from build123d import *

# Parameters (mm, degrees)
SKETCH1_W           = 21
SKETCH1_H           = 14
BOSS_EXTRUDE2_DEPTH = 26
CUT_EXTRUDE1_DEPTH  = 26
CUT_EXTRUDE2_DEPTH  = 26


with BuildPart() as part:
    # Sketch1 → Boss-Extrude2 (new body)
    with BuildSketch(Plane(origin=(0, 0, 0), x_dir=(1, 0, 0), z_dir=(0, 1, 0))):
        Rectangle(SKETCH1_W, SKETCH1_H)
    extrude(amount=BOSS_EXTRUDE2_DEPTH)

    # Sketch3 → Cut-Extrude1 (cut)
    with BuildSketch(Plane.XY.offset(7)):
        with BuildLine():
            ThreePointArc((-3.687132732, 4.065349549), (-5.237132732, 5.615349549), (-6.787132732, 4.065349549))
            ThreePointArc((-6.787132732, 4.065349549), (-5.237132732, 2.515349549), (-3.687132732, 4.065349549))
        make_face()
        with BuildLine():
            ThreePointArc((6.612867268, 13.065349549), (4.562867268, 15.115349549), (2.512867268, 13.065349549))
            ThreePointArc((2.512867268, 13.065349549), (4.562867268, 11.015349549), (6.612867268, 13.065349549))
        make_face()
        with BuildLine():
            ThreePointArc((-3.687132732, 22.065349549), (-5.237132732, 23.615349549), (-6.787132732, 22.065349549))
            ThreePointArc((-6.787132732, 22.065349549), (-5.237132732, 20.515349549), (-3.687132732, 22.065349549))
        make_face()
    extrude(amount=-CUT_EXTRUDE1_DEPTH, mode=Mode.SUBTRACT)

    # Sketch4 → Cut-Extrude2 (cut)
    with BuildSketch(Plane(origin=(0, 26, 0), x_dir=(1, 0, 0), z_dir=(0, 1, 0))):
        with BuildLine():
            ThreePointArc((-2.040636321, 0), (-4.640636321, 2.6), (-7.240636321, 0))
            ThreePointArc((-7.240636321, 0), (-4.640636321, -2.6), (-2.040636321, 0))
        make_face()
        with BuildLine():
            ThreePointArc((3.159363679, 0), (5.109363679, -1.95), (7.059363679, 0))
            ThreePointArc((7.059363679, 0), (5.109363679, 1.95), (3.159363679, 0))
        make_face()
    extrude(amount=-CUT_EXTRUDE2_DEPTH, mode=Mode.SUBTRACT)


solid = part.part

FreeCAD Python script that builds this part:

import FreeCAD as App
import Part
import Sketcher
from FreeCAD import Vector

doc = App.newDocument("Part")
body = doc.addObject("PartDesign::Body", "Body")

sketch1 = doc.addObject("Sketcher::SketchObject", "Sketch")
body.addObject(sketch1)
sketch1.AttachmentSupport = (doc.XZ_Plane, [""])
sketch1.MapMode = "FlatFace"
sketch1.addGeometry([
    Part.LineSegment(Vector(-10, -7, 0), Vector(-10, 7, 0)),
    Part.LineSegment(Vector(-10, 7, 0), Vector(10, 7, 0)),
    Part.LineSegment(Vector(10, 7, 0), Vector(10, -7, 0)),
    Part.LineSegment(Vector(10, -7, 0), Vector(-10, -7, 0)),
], False)
sketch1.addConstraint([
    Sketcher.Constraint("Coincident", 0, 2, 1, 1),
    Sketcher.Constraint("Coincident", 1, 2, 2, 1),
    Sketcher.Constraint("Coincident", 2, 2, 3, 1),
    Sketcher.Constraint("Coincident", 3, 2, 0, 1),
    Sketcher.Constraint("Vertical", 0),
    Sketcher.Constraint("Horizontal", 1),
    Sketcher.Constraint("Vertical", 2),
    Sketcher.Constraint("Horizontal", 3),
    Sketcher.Constraint("Symmetric", 0, 2, 2, 2, -1, 1),
    Sketcher.Constraint("DistanceX", 1, 1, 1, 2, 21.0),
    Sketcher.Constraint("DistanceY", 0, 1, 0, 2, 14.0),
])
pad1 = doc.addObject("PartDesign::Pad", "Pad")
body.addObject(pad1)
pad1.Profile = sketch1
pad1.Length = 26
pad1.Reversed = True

sketch2 = doc.addObject("Sketcher::SketchObject", "Sketch001")
body.addObject(sketch2)
sketch2.AttachmentSupport = (doc.XY_Plane, [""])
sketch2.MapMode = "FlatFace"
sketch2.AttachmentOffset = App.Placement(Vector(0, 0, 7), App.Rotation())
sketch2.addGeometry([
    Part.Circle(Vector(-5.2, 4.1, 0), Vector(0, 0, 1), 1.6),
    Part.Circle(Vector(4.6, 13.1, 0), Vector(0, 0, 1), 2),
    Part.Circle(Vector(-5.2, 22.1, 0), Vector(0, 0, 1), 1.6),
], False)
sketch2.addConstraint([
    Sketcher.Constraint("Equal", 0, 2),
    Sketcher.Constraint("Vertical", 0, 3, 2, 3),
    Sketcher.Constraint("Diameter", 0, 3.1),
    Sketcher.Constraint("Diameter", 1, 4.1),
    Sketcher.Constraint("DistanceY", 0, 3, 1, 3, 9.0),
    Sketcher.Constraint("DistanceY", 1, 3, 2, 3, 9.0),
    Sketcher.Constraint("DistanceX", 0, 3, 1, 3, 9.8),
    Sketcher.Constraint("DistanceY", -1, 1, 0, 3, 4.06535),
    Sketcher.Constraint("DistanceX", 0, 3, -1, 1, 5.237133),
])
pocket1 = doc.addObject("PartDesign::Pocket", "Pocket")
body.addObject(pocket1)
pocket1.Profile = sketch2
pocket1.Length = 26

sketch3 = doc.addObject("Sketcher::SketchObject", "Sketch002")
body.addObject(sketch3)
sketch3.AttachmentSupport = (doc.XZ_Plane, [""])
sketch3.MapMode = "FlatFace"
sketch3.AttachmentOffset = App.Placement(Vector(0, 0, -26), App.Rotation())
sketch3.addGeometry([
    Part.Circle(Vector(-4.6, 0, 0), Vector(0, 0, 1), 2.6),
    Part.Circle(Vector(5.1, 0, 0), Vector(0, 0, 1), 1.9),
], False)
sketch3.addConstraint([
    Sketcher.Constraint("PointOnObject", 0, 3, -1),
    Sketcher.Constraint("PointOnObject", 1, 3, -1),
    Sketcher.Constraint("Diameter", 0, 5.2),
    Sketcher.Constraint("Diameter", 1, 3.9),
    Sketcher.Constraint("DistanceX", 0, 3, 1, 3, 9.75),
    Sketcher.Constraint("DistanceX", 0, 3, -1, 1, 4.640636),
])
pocket2 = doc.addObject("PartDesign::Pocket", "Pocket001")
body.addObject(pocket2)
pocket2.Profile = sketch3
pocket2.Length = 26
pocket2.Reversed = True

doc.recompute()
